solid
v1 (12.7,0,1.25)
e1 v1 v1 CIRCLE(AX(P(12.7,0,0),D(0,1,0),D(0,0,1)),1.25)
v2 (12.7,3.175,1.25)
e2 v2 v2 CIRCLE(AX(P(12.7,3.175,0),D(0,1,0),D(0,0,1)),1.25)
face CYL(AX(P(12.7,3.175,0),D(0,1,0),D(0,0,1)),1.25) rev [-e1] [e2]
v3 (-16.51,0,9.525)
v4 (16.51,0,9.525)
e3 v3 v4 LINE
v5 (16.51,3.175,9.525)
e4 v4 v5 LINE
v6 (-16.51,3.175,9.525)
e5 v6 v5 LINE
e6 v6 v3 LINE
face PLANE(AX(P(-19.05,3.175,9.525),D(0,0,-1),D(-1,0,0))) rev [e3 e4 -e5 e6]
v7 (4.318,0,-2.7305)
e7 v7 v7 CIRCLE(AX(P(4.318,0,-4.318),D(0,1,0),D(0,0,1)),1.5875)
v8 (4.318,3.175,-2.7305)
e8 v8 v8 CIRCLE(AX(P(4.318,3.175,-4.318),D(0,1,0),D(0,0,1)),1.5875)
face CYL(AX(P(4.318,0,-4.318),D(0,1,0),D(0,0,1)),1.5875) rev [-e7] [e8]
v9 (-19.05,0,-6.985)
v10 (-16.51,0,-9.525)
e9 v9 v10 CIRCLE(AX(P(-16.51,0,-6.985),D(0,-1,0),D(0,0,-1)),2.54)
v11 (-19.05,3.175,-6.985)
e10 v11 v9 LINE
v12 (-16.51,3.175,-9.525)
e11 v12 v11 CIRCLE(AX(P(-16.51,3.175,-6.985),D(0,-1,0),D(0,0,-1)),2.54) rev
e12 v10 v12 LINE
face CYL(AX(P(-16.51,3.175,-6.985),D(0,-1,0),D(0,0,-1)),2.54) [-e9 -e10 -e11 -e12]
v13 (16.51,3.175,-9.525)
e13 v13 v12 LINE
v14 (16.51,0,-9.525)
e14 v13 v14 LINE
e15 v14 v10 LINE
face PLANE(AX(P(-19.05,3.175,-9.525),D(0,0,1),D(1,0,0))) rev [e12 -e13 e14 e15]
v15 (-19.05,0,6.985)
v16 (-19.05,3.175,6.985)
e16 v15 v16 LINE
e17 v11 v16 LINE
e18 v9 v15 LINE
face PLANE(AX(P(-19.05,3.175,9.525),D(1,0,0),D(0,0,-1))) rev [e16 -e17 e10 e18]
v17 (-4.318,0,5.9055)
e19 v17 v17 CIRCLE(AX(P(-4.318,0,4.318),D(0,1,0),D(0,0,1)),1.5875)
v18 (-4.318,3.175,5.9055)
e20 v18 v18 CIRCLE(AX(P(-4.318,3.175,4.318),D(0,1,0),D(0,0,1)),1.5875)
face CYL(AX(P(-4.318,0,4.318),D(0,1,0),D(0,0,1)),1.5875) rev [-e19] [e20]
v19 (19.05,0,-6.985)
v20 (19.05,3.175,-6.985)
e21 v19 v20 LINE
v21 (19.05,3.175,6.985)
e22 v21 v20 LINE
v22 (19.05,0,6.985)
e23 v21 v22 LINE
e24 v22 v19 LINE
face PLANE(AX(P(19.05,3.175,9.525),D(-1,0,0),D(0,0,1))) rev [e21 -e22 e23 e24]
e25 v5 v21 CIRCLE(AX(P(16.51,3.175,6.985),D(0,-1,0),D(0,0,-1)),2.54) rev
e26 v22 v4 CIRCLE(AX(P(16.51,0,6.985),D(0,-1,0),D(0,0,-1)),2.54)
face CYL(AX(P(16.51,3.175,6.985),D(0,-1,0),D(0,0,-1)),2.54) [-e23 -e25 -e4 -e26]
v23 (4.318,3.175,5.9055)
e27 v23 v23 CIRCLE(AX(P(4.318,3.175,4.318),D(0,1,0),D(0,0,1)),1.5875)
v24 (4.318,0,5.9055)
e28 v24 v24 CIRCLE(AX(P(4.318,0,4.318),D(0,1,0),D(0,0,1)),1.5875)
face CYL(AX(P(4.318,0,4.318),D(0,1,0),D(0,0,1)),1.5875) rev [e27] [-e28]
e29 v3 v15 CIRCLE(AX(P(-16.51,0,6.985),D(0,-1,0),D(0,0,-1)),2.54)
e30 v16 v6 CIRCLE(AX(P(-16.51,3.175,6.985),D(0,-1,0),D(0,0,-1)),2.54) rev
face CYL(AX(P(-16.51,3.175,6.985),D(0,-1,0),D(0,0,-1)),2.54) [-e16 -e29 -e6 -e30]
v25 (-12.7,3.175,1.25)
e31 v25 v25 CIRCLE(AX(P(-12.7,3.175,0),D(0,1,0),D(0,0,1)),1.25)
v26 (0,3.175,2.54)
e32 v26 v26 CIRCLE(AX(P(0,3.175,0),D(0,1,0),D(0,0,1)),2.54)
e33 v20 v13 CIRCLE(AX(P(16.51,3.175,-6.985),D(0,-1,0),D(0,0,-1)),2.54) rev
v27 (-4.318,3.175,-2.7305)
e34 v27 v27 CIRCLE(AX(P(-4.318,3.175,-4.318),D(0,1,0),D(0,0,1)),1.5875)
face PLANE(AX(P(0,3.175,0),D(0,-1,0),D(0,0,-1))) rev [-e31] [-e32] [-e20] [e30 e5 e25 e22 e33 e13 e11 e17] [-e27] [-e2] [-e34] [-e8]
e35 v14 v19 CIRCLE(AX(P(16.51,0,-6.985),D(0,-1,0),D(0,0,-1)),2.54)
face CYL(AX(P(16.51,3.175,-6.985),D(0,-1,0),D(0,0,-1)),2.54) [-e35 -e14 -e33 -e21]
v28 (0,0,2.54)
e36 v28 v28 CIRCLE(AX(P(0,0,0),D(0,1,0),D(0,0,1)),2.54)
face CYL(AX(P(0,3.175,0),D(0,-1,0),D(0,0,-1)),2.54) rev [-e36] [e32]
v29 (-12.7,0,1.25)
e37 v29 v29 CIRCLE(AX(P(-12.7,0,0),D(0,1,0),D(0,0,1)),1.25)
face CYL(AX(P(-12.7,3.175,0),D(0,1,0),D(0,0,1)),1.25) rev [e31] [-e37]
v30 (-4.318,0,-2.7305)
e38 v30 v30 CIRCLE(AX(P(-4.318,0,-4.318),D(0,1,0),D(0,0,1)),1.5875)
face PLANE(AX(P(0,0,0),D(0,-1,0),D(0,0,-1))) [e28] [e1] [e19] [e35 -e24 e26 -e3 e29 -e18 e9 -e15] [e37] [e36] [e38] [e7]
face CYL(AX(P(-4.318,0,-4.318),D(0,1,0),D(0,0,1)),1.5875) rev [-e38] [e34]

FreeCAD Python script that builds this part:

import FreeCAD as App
import Part
import Sketcher
from FreeCAD import Vector
Q = App.Units.Quantity


def edges_at(feature, points):
    """Names of the edges that pass closest to the given points."""
    edges = feature.Shape.Edges
    near = lambda p: min(range(len(edges)), key=lambda i: edges[i].distToShape(Part.Vertex(*p))[0])
    return sorted({f"Edge{near(p) + 1}" for p in points})


def add_polygon(sketch, points):
    """Adds a closed chain of lines whose ends are joined by coincident constraints."""
    first, n = sketch.GeometryCount, len(points)
    for a, b in zip(points, points[1:] + points[:1]):
        sketch.addGeometry(Part.LineSegment(App.Vector(*a, 0), App.Vector(*b, 0)), False)
    for i in range(n):
        sketch.addConstraint(Sketcher.Constraint("Coincident", first + i, 2, first + (i + 1) % n, 1))

doc = App.newDocument("Part")
body = doc.addObject("PartDesign::Body", "Body")

# Sketch on XZ plane
sketch1 = body.newObject("Sketcher::SketchObject", "Sketch")
sketch1.AttachmentSupport = (doc.getObject("XZ_Plane"), [""])
sketch1.MapMode = "FlatFace"
add_polygon(sketch1, [(-19.1, -9.5), (-19.1, 9.5), (19.1, 9.5), (19.1, -9.5)])  # lines 0-3
sketch1.addGeometry(Part.Circle(Vector(0, 0, 0), Vector(0, 0, 1), 2.5), False)  # 4
sketch1.addConstraint(Sketcher.Constraint("Vertical", 0))
sketch1.addConstraint(Sketcher.Constraint("Horizontal", 1))
sketch1.addConstraint(Sketcher.Constraint("Vertical", 2))
sketch1.addConstraint(Sketcher.Constraint("Horizontal", 3))
sketch1.addConstraint(Sketcher.Constraint("Coincident", 4, 3, -1, 1))
sketch1.addConstraint(Sketcher.Constraint("Symmetric", 0, 2, 2, 2, -1, 1))
sketch1.addConstraint(Sketcher.Constraint("Diameter", 4, Q("0.2 in")))
sketch1.addConstraint(Sketcher.Constraint("DistanceX", 1, 1, 1, 2, Q("1.5 in")))
sketch1.addConstraint(Sketcher.Constraint("DistanceY", 0, 1, 0, 2, Q("0.75 in")))
pad1 = body.newObject("PartDesign::Pad", "Pad")
pad1.Profile = sketch1
pad1.Length = Q("0.125 in")
pad1.Reversed = True

# Sketch on XZ plane
sketch2 = body.newObject("Sketcher::SketchObject", "Sketch001")
sketch2.AttachmentSupport = (doc.getObject("XZ_Plane"), [""])
sketch2.MapMode = "FlatFace"
sketch2.AttachmentOffset = App.Placement(Vector(0, 0, -0.125 * 25.4), App.Rotation())
sketch2.addGeometry(Part.Circle(Vector(-4.3, -4.3, 0), Vector(0, 0, 1), 1.6), False)
sketch2.addGeometry(Part.Circle(Vector(4.3, -4.3, 0), Vector(0, 0, 1), 1.6), False)
sketch2.addGeometry(Part.Circle(Vector(-4.3, 4.3, 0), Vector(0, 0, 1), 1.6), False)
sketch2.addGeometry(Part.Circle(Vector(4.3, 4.3, 0), Vector(0, 0, 1), 1.6), False)
sketch2.addConstraint(Sketcher.Constraint("Equal", 0, 1))
sketch2.addConstraint(Sketcher.Constraint("Equal", 1, 2))
sketch2.addConstraint(Sketcher.Constraint("Equal", 2, 3))
sketch2.addConstraint(Sketcher.Constraint("Symmetric", 1, 3, 2, 3, -1, 1))
sketch2.addConstraint(Sketcher.Constraint("Symmetric", 0, 3, 3, 3, -1, 1))
sketch2.addConstraint(Sketcher.Constraint("Symmetric", 0, 3, 1, 3, -2))
sketch2.addConstraint(Sketcher.Constraint("Diameter", 0, Q("0.125 in")))
sketch2.addConstraint(Sketcher.Constraint("DistanceX", 0, 3, -1, 1, Q("0.17 in")))
sketch2.addConstraint(Sketcher.Constraint("DistanceY", 0, 3, -1, 1, Q("0.17 in")))
pocket1 = body.newObject("PartDesign::Pocket", "Pocket")
pocket1.Profile = sketch2
pocket1.Type = "ThroughAll"
pocket1.Reversed = True

# Sketch on XZ plane
sketch3 = body.newObject("Sketcher::SketchObject", "Sketch002")
sketch3.AttachmentSupport = (doc.getObject("XZ_Plane"), [""])
sketch3.MapMode = "FlatFace"
sketch3.AttachmentOffset = App.Placement(Vector(0, 0, -0.125 * 25.4), App.Rotation())
sketch3.addGeometry(Part.Circle(Vector(12.7, 0, 0), Vector(0, 0, 1), 1.2), False)
sketch3.addGeometry(Part.Circle(Vector(-12.7, 0, 0), Vector(0, 0, 1), 1.2), False)
sketch3.addConstraint(Sketcher.Constraint("Equal", 0, 1))
sketch3.addConstraint(Sketcher.Constraint("Symmetric", 0, 3, 1, 3, -1, 1))
sketch3.addConstraint(Sketcher.Constraint("PointOnObject", 0, 3, -1))
sketch3.addConstraint(Sketcher.Constraint("DistanceX", 1, 3, 0, 3, Q("1 in")))
sketch3.addConstraint(Sketcher.Constraint("Diameter", 0, 2.5))
doc.recompute()
hole = body.newObject("PartDesign::Hole", "Hole")
hole.Profile = sketch3
hole.ThreadType = "None"
hole.Diameter = 2.5
hole.DepthType = "ThroughAll"
hole.Reversed = True
doc.recompute()

fillet = body.newObject("PartDesign::Fillet", "Fillet")
fillet.Base = (hole, edges_at(hole, [
    (19.05, 1.587, 9.525),
    (-19.05, 1.587, 9.525),
    (-19.05, 1.587, -9.525),
    (19.05, 1.587, -9.525),
]))
fillet.Radius = Q("0.1 in")

doc.recompute()
